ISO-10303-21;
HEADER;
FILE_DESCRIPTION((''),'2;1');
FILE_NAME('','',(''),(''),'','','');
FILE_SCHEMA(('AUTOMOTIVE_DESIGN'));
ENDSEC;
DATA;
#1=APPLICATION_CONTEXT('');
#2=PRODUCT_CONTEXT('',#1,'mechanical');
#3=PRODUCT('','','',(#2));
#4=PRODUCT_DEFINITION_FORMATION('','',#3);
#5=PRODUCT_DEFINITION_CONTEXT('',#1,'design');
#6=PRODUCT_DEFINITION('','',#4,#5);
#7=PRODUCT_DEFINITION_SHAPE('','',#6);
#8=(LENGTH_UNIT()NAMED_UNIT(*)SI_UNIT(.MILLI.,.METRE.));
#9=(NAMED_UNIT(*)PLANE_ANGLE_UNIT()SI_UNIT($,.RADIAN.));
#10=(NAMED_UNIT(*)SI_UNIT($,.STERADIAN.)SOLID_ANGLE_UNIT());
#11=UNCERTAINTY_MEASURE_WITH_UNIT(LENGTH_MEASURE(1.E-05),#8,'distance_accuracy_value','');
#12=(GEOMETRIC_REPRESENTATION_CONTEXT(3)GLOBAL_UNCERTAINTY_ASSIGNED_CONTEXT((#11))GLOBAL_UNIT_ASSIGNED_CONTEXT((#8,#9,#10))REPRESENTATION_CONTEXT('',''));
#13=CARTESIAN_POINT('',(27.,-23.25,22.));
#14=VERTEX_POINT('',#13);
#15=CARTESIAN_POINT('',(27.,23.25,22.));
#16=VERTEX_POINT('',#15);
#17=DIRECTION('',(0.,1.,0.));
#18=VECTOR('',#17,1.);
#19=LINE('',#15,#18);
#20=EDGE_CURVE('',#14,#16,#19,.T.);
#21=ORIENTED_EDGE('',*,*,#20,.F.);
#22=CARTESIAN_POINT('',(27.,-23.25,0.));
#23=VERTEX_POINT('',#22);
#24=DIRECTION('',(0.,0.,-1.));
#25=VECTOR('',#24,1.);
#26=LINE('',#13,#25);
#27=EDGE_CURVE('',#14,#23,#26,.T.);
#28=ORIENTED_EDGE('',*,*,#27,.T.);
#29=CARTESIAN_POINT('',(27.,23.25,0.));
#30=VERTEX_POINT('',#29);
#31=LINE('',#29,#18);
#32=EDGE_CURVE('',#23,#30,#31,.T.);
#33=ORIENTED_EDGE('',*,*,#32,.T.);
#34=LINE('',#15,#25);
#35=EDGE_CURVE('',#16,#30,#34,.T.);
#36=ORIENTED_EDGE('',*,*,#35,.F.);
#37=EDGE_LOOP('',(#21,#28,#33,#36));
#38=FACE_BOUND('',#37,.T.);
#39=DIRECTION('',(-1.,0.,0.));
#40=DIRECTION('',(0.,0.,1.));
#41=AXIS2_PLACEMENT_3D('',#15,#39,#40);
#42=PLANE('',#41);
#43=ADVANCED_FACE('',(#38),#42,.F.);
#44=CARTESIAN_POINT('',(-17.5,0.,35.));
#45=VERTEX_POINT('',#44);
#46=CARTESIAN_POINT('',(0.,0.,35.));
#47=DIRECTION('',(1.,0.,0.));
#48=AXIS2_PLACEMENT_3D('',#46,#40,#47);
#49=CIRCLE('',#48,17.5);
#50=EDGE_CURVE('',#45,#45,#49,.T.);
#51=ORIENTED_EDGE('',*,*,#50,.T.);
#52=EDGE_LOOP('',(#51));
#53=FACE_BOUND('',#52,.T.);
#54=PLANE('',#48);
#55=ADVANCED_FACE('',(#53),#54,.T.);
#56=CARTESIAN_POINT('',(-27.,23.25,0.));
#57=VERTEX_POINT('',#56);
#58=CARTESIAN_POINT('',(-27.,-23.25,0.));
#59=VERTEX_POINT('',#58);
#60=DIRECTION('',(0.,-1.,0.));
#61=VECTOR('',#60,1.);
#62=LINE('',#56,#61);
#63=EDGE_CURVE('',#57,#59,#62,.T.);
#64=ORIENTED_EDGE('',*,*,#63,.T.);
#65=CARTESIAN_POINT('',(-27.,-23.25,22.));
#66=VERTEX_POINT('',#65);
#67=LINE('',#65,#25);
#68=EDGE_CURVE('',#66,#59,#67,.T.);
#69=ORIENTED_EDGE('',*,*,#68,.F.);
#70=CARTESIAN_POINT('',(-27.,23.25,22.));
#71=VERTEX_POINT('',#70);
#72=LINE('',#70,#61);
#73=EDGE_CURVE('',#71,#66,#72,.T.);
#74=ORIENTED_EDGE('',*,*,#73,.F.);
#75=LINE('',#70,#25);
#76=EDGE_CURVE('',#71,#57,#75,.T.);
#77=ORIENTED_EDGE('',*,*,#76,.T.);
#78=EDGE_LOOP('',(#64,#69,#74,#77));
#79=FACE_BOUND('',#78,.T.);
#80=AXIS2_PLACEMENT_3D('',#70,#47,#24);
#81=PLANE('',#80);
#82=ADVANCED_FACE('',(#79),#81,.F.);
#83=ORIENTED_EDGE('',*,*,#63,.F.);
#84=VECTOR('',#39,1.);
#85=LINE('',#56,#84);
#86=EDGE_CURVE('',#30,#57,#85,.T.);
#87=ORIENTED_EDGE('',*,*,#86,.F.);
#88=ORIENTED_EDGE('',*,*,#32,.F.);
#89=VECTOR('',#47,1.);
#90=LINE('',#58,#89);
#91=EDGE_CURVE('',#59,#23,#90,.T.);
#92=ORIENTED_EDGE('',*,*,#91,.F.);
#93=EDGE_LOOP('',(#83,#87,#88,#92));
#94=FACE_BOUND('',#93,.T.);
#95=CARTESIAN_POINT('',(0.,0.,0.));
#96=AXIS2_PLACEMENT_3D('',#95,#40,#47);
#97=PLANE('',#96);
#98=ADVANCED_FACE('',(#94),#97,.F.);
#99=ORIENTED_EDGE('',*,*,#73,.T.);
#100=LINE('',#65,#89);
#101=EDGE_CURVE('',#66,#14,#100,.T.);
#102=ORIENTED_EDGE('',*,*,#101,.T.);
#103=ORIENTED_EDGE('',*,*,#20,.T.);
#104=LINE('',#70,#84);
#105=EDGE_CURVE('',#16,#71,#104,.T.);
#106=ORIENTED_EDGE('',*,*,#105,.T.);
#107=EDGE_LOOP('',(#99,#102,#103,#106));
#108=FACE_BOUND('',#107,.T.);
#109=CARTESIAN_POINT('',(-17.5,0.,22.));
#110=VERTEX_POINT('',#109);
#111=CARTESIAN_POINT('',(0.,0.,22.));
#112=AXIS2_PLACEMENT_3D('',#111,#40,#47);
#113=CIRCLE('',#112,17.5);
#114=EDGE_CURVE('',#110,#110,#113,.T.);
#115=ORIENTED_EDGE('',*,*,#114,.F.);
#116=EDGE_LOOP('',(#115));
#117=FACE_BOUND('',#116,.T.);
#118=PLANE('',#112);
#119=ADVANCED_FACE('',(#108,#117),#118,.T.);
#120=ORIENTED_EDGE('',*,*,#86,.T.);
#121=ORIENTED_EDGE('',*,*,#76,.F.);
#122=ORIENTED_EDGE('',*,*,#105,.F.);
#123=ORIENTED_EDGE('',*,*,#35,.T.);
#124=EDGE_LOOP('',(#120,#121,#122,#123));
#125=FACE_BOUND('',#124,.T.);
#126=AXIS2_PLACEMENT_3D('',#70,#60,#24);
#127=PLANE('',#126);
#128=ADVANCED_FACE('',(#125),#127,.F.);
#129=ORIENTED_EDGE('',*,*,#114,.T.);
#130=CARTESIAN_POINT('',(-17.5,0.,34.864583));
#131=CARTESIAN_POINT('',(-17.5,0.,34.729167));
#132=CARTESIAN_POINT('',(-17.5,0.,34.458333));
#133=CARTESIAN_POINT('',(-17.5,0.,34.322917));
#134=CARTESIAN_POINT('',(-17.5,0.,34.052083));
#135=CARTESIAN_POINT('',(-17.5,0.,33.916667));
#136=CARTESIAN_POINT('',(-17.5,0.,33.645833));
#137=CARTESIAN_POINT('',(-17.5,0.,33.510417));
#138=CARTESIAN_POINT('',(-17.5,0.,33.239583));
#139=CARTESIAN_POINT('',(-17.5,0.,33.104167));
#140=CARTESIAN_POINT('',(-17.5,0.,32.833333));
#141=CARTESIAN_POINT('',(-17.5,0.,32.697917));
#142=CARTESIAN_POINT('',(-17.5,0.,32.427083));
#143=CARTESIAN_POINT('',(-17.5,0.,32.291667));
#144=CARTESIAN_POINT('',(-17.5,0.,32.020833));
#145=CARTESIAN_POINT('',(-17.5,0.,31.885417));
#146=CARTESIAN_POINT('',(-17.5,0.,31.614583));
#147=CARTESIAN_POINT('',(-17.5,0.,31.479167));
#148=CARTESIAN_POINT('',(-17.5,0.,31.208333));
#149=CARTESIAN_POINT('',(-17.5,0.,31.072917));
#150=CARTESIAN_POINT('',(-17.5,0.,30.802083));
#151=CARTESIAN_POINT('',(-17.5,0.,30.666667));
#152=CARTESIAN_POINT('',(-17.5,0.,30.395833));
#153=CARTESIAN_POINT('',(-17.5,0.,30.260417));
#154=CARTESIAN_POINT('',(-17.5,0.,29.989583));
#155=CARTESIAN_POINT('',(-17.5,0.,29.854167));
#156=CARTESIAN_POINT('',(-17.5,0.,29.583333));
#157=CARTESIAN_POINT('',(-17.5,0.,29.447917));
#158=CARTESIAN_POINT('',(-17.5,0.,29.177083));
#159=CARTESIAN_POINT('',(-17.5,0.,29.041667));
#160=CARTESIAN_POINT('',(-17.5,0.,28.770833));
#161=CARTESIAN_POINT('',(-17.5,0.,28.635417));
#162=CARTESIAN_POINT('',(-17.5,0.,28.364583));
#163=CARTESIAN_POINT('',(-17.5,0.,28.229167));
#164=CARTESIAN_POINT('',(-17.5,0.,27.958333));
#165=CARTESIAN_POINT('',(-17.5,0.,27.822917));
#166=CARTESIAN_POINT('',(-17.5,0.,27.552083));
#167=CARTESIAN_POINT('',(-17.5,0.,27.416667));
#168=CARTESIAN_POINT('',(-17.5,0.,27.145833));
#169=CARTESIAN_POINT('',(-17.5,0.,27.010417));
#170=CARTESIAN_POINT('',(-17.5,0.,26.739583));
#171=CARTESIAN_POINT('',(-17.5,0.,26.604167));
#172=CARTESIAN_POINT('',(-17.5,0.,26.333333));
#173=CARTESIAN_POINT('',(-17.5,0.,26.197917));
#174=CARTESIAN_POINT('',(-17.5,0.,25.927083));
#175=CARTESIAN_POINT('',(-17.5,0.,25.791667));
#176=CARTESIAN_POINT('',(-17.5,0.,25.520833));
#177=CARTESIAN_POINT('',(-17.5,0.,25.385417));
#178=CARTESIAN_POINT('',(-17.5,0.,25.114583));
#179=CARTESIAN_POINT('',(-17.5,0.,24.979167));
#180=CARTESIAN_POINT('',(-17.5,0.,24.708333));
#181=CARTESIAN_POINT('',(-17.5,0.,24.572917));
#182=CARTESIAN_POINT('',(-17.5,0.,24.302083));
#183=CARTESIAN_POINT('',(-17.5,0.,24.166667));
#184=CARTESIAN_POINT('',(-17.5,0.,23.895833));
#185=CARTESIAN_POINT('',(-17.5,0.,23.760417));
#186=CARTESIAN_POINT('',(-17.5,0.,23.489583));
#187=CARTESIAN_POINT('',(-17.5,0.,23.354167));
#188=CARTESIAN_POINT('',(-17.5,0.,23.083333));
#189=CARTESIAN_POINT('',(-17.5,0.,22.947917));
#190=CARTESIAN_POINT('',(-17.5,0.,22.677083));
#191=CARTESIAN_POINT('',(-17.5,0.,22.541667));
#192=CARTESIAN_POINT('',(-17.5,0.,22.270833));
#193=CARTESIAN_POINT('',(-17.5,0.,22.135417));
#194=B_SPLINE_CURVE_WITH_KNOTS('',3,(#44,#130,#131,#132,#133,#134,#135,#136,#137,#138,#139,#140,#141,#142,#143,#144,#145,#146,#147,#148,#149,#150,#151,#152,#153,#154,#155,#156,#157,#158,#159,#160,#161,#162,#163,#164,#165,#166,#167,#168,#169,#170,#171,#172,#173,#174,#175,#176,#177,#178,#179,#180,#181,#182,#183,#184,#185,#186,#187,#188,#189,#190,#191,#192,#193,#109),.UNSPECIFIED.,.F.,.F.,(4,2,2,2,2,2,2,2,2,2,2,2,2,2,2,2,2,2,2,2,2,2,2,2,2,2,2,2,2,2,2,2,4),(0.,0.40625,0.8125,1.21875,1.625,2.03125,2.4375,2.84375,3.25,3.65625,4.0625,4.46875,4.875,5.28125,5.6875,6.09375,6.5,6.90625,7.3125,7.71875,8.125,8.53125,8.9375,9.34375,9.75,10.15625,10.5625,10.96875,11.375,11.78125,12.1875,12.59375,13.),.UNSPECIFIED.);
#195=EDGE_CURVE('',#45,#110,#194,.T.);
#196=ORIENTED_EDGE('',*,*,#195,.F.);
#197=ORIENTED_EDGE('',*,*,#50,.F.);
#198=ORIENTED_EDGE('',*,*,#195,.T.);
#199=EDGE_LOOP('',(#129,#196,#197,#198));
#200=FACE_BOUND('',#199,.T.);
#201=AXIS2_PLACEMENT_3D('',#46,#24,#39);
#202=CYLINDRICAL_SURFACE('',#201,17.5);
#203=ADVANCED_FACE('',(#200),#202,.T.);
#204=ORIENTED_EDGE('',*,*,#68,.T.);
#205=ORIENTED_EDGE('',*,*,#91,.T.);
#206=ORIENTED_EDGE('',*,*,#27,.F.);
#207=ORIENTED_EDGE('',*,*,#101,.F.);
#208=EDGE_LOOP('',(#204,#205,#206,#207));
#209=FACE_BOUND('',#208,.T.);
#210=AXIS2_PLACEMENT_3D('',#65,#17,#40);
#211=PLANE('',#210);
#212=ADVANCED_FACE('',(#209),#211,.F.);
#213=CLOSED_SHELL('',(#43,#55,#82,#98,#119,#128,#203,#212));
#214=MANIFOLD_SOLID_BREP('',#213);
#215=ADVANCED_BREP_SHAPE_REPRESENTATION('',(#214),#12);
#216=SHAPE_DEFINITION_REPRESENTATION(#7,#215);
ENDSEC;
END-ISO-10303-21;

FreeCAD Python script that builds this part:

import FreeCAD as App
import Part
import Sketcher


def add_polygon(sketch, points):
    """Adds a closed chain of lines whose ends are joined by coincident constraints."""
    first, n = sketch.GeometryCount, len(points)
    for a, b in zip(points, points[1:] + points[:1]):
        sketch.addGeometry(Part.LineSegment(App.Vector(*a, 0), App.Vector(*b, 0)), False)
    for i in range(n):
        sketch.addConstraint(Sketcher.Constraint("Coincident", first + i, 2, first + (i + 1) % n, 1))

doc = App.newDocument("Part")
body = doc.addObject("PartDesign::Body", "Body")

# Sketch on XY plane
sketch1 = doc.addObject("Sketcher::SketchObject", "Sketch")
body.addObject(sketch1)
sketch1.AttachmentSupport = (doc.XY_Plane, [""])
sketch1.MapMode = "FlatFace"
add_polygon(sketch1, [(-27, 23), (-27, -23), (27, -23), (27, 23)])  # lines 0-3
sketch1.addConstraint([
    Sketcher.Constraint("Vertical", 0),
    Sketcher.Constraint("Horizontal", 1),
    Sketcher.Constraint("Vertical", 2),
    Sketcher.Constraint("Horizontal", 3),
    Sketcher.Constraint("Symmetric", 0, 2, 2, 2, -1, 1),
    Sketcher.Constraint("DistanceX", 1, 1, 1, 2, 54.0),
    Sketcher.Constraint("DistanceY", 0, 2, 0, 1, 46.5),
])
pad1 = doc.addObject("PartDesign::Pad", "Pad")
body.addObject(pad1)
pad1.Profile = sketch1
pad1.Length = 22

# Sketch on XY plane
sketch2 = doc.addObject("Sketcher::SketchObject", "Sketch001")
body.addObject(sketch2)
sketch2.AttachmentSupport = (doc.XY_Plane, [""])
sketch2.MapMode = "FlatFace"
sketch2.AttachmentOffset = App.Placement(App.Vector(0, 0, 22), App.Rotation())
sketch2.addGeometry(Part.Circle(App.Vector(0, 0, 0), App.Vector(0, 0, 1), 18), False)
sketch2.addConstraint([
    Sketcher.Constraint("Coincident", 0, 3, -1, 1),
    Sketcher.Constraint("Diameter", 0, 35.0),
])
pad2 = doc.addObject("PartDesign::Pad", "Pad001")
body.addObject(pad2)
pad2.Profile = sketch2
pad2.Length = 13

doc.recompute()
